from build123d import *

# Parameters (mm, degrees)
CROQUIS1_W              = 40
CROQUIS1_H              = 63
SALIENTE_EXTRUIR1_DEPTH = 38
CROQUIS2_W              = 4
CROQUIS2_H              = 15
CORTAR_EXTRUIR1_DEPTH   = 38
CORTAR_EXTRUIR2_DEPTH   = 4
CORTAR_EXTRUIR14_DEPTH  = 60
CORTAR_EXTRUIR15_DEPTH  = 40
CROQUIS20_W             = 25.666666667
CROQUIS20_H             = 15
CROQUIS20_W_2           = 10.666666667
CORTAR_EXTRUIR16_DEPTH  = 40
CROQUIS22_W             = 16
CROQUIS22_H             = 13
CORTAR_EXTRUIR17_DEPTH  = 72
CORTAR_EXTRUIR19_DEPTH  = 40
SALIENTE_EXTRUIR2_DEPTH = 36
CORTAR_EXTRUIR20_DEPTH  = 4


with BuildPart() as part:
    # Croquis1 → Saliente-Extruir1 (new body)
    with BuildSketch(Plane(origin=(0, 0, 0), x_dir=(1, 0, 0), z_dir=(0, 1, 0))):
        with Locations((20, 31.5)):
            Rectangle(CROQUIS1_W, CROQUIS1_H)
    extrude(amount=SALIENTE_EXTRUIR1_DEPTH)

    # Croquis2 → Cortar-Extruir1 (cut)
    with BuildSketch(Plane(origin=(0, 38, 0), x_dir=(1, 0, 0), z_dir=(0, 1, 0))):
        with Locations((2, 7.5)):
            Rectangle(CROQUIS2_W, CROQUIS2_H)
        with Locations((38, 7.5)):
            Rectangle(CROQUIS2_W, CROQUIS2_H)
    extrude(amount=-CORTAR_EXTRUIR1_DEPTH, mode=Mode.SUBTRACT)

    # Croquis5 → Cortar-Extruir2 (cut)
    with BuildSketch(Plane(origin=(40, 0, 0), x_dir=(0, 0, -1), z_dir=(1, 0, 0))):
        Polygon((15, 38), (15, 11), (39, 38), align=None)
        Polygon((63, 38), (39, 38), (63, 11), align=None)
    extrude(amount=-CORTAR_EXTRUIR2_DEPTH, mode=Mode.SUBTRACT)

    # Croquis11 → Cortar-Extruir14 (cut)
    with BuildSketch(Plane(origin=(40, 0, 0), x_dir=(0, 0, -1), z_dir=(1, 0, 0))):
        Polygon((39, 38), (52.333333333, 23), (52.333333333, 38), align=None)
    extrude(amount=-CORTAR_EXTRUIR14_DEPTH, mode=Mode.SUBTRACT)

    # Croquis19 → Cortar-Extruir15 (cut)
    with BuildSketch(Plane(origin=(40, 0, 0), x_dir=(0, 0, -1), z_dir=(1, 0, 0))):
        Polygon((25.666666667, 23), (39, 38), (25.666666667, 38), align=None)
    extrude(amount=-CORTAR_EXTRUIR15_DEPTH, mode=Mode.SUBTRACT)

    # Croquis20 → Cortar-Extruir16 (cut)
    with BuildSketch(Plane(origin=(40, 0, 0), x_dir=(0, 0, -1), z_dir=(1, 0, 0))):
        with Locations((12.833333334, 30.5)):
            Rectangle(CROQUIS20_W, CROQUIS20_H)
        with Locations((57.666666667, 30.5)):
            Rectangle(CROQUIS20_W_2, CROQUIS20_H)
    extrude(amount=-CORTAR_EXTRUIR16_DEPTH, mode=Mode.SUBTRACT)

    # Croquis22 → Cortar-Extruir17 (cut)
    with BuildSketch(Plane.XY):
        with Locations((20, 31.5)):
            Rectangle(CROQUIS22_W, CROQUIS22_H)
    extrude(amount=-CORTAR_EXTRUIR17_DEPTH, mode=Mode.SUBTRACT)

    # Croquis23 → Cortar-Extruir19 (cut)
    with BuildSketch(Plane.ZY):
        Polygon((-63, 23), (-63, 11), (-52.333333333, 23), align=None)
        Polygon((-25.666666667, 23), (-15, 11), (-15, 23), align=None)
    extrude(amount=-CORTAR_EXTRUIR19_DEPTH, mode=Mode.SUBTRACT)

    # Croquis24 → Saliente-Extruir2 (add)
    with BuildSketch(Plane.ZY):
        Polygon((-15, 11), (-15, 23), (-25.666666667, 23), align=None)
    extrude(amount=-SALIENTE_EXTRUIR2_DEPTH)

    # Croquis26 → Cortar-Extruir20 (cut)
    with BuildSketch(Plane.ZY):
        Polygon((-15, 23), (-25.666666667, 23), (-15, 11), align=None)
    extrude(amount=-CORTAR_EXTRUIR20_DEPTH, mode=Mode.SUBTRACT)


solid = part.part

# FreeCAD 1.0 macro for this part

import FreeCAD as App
import Part
import Sketcher

doc = App.newDocument("Part")
body = doc.addObject("PartDesign::Body", "Body")

# Sketch on XZ plane
sketch1 = body.newObject("Sketcher::SketchObject", "Sketch")
sketch1.AttachmentSupport = (doc.getObject("XZ_Plane"), [""])
sketch1.MapMode = "FlatFace"
sketch1.addGeometry([
    Part.LineSegment(App.Vector(0, -63, 0), App.Vector(0, 0, 0)),
    Part.LineSegment(App.Vector(0, 0, 0), App.Vector(40, 0, 0)),
    Part.LineSegment(App.Vector(40, 0, 0), App.Vector(40, -63, 0)),
    Part.LineSegment(App.Vector(40, -63, 0), App.Vector(0, -63, 0)),
], False)
sketch1.addConstraint([
    Sketcher.Constraint("Coincident", 0, 2, 1, 1),
    Sketcher.Constraint("Coincident", 1, 2, 2, 1),
    Sketcher.Constraint("Coincident", 2, 2, 3, 1),
    Sketcher.Constraint("Coincident", 3, 2, 0, 1),
    Sketcher.Constraint("Vertical", 0),
    Sketcher.Constraint("Horizontal", 1),
    Sketcher.Constraint("Vertical", 2),
    Sketcher.Constraint("Horizontal", 3),
    Sketcher.Constraint("Coincident", 0, 2, -1, 1),
    Sketcher.Constraint("DistanceX", 1, 1, 1, 2, 40.0),
    Sketcher.Constraint("DistanceY", 0, 1, 0, 2, 63.0),
])
pad1 = body.newObject("PartDesign::Pad", "Pad")
pad1.Profile = sketch1
pad1.Length = 38
pad1.Reversed = True

# Sketch on XZ plane
sketch2 = body.newObject("Sketcher::SketchObject", "Sketch001")
sketch2.AttachmentSupport = (doc.getObject("XZ_Plane"), [""])
sketch2.MapMode = "FlatFace"
sketch2.AttachmentOffset = App.Placement(App.Vector(0, 0, -38), App.Rotation())
sketch2.addGeometry([
    Part.LineSegment(App.Vector(0, -15, 0), App.Vector(0, 0, 0)),  # 0
    Part.LineSegment(App.Vector(0, 0, 0), App.Vector(4, 0, 0)),  # 1
    Part.LineSegment(App.Vector(4, 0, 0), App.Vector(4, -15, 0)),  # 2
    Part.LineSegment(App.Vector(4, -15, 0), App.Vector(0, -15, 0)),  # 3
    Part.LineSegment(App.Vector(36, -15, 0), App.Vector(36, 0, 0)),  # 4
    Part.LineSegment(App.Vector(36, 0, 0), App.Vector(40, 0, 0)),  # 5
    Part.LineSegment(App.Vector(40, 0, 0), App.Vector(40, -15, 0)),  # 6
    Part.LineSegment(App.Vector(40, -15, 0), App.Vector(36, -15, 0)),  # 7
], False)
sketch2.addConstraint([
    Sketcher.Constraint("Coincident", 0, 2, 1, 1),
    Sketcher.Constraint("Coincident", 1, 2, 2, 1),
    Sketcher.Constraint("Coincident", 2, 2, 3, 1),
    Sketcher.Constraint("Coincident", 3, 2, 0, 1),
    Sketcher.Constraint("Coincident", 4, 2, 5, 1),
    Sketcher.Constraint("Coincident", 5, 2, 6, 1),
    Sketcher.Constraint("Coincident", 6, 2, 7, 1),
    Sketcher.Constraint("Coincident", 7, 2, 4, 1),
    Sketcher.Constraint("Vertical", 0),
    Sketcher.Constraint("Horizontal", 1),
    Sketcher.Constraint("Vertical", 2),
    Sketcher.Constraint("Horizontal", 3),
    Sketcher.Constraint("Vertical", 4),
    Sketcher.Constraint("Horizontal", 5),
    Sketcher.Constraint("Vertical", 6),
    Sketcher.Constraint("Horizontal", 7),
    Sketcher.Constraint("Coincident", 0, 2, -1, 1),
    Sketcher.Constraint("PointOnObject", 4, 2, -1),
    Sketcher.Constraint("Horizontal", 3, 2, 6, 2),
    Sketcher.Constraint("Equal", 3, 5),
    Sketcher.Constraint("DistanceX", 1, 1, 1, 2, 4.0),
    Sketcher.Constraint("DistanceY", 0, 1, 0, 2, 15.0),
    Sketcher.Constraint("DistanceX", -1, 1, 4, 2, 36.0),
])
pocket1 = body.newObject("PartDesign::Pocket", "Pocket")
pocket1.Profile = sketch2
pocket1.Length = 38
pocket1.Reversed = True

# Sketch on YZ plane
sketch3 = body.newObject("Sketcher::SketchObject", "Sketch002")
sketch3.AttachmentSupport = (doc.getObject("YZ_Plane"), [""])
sketch3.MapMode = "FlatFace"
sketch3.AttachmentOffset = App.Placement(App.Vector(0, 0, 40), App.Rotation())
sketch3.addGeometry([
    Part.LineSegment(App.Vector(38, -15, 0), App.Vector(11, -15, 0)),  # 0
    Part.LineSegment(App.Vector(11, -15, 0), App.Vector(38, -39, 0)),  # 1
    Part.LineSegment(App.Vector(38, -39, 0), App.Vector(38, -15, 0)),  # 2
    Part.LineSegment(App.Vector(38, -63, 0), App.Vector(38, -39, 0)),  # 3
    Part.LineSegment(App.Vector(38, -39, 0), App.Vector(11, -63, 0)),  # 4
    Part.LineSegment(App.Vector(11, -63, 0), App.Vector(38, -63, 0)),  # 5
], False)
sketch3.addConstraint([
    Sketcher.Constraint("Coincident", 0, 2, 1, 1),
    Sketcher.Constraint("Coincident", 1, 2, 2, 1),
    Sketcher.Constraint("Coincident", 2, 2, 0, 1),
    Sketcher.Constraint("Coincident", 3, 2, 4, 1),
    Sketcher.Constraint("Coincident", 4, 2, 5, 1),
    Sketcher.Constraint("Coincident", 5, 2, 3, 1),
    Sketcher.Constraint("Horizontal", 0),
    Sketcher.Constraint("Vertical", 2),
    Sketcher.Constraint("Vertical", 3),
    Sketcher.Constraint("Horizontal", 5),
    Sketcher.Constraint("Coincident", 3, 2, 1, 2),
    Sketcher.Constraint("Vertical", 0, 2, 4, 2),
    Sketcher.Constraint("Equal", 2, 3),
    Sketcher.Constraint("DistanceX", 0, 2, 0, 1, 27.0),
    Sketcher.Constraint("DistanceY", 2, 1, 2, 2, 24.0),
    Sketcher.Constraint("DistanceX", -1, 1, 0, 2, 11.0),
    Sketcher.Constraint("DistanceY", 0, 2, -1, 1, 15.0),
])
pocket2 = body.newObject("PartDesign::Pocket", "Pocket001")
pocket2.Profile = sketch3
pocket2.Length = 4

# Sketch on YZ plane
sketch4 = body.newObject("Sketcher::SketchObject", "Sketch003")
sketch4.AttachmentSupport = (doc.getObject("YZ_Plane"), [""])
sketch4.MapMode = "FlatFace"
sketch4.AttachmentOffset = App.Placement(App.Vector(0, 0, 40), App.Rotation())
sketch4.addGeometry([
    Part.LineSegment(App.Vector(38, -39, 0), App.Vector(23, -52, 0)),
    Part.LineSegment(App.Vector(23, -52, 0), App.Vector(38, -52, 0)),
    Part.LineSegment(App.Vector(38, -52, 0), App.Vector(38, -39, 0)),
], False)
sketch4.addConstraint([
    Sketcher.Constraint("Coincident", 0, 2, 1, 1),
    Sketcher.Constraint("Coincident", 1, 2, 2, 1),
    Sketcher.Constraint("Coincident", 2, 2, 0, 1),
    Sketcher.Constraint("Horizontal", 1),
    Sketcher.Constraint("Vertical", 2),
    Sketcher.Constraint("DistanceX", 1, 1, 1, 2, 15.0),
    Sketcher.Constraint("DistanceX", -1, 1, 0, 2, 23.0),
    Sketcher.Constraint("DistanceY", 2, 2, -1, 1, 39.0),
    Sketcher.Constraint("DistanceY", 2, 1, 2, 2, 13.333333),
])
pocket3 = body.newObject("PartDesign::Pocket", "Pocket002")
pocket3.Profile = sketch4
pocket3.Length = 60

# Sketch on YZ plane
sketch5 = body.newObject("Sketcher::SketchObject", "Sketch004")
sketch5.AttachmentSupport = (doc.getObject("YZ_Plane"), [""])
sketch5.MapMode = "FlatFace"
sketch5.AttachmentOffset = App.Placement(App.Vector(0, 0, 40), App.Rotation())
sketch5.addGeometry([
    Part.LineSegment(App.Vector(23, -26, 0), App.Vector(38, -39, 0)),
    Part.LineSegment(App.Vector(38, -39, 0), App.Vector(38, -26, 0)),
    Part.LineSegment(App.Vector(38, -26, 0), App.Vector(23, -26, 0)),
], False)
sketch5.addConstraint([
    Sketcher.Constraint("Coincident", 0, 2, 1, 1),
    Sketcher.Constraint("Coincident", 1, 2, 2, 1),
    Sketcher.Constraint("Coincident", 2, 2, 0, 1),
    Sketcher.Constraint("Vertical", 1),
    Sketcher.Constraint("Horizontal", 2),
    Sketcher.Constraint("DistanceX", 2, 2, 2, 1, 15.0),
    Sketcher.Constraint("DistanceX", -1, 1, 0, 2, 38.0),
    Sketcher.Constraint("DistanceY", 0, 2, -1, 1, 39.0),
    Sketcher.Constraint("DistanceY", 1, 1, 1, 2, 13.333333),
])
pocket4 = body.newObject("PartDesign::Pocket", "Pocket003")
pocket4.Profile = sketch5
pocket4.Length = 40

# Sketch on YZ plane
sketch6 = body.newObject("Sketcher::SketchObject", "Sketch005")
sketch6.AttachmentSupport = (doc.getObject("YZ_Plane"), [""])
sketch6.MapMode = "FlatFace"
sketch6.AttachmentOffset = App.Placement(App.Vector(0, 0, 40), App.Rotation())
sketch6.addGeometry([
    Part.LineSegment(App.Vector(38, 0, 0), App.Vector(23, 0, 0)),  # 0
    Part.LineSegment(App.Vector(23, 0, 0), App.Vector(23, -26, 0)),  # 1
    Part.LineSegment(App.Vector(23, -26, 0), App.Vector(38, -26, 0)),  # 2
    Part.LineSegment(App.Vector(38, -26, 0), App.Vector(38, 0, 0)),  # 3
    Part.LineSegment(App.Vector(38, -52, 0), App.Vector(23, -52, 0)),  # 4
    Part.LineSegment(App.Vector(23, -52, 0), App.Vector(23, -63, 0)),  # 5
    Part.LineSegment(App.Vector(23, -63, 0), App.Vector(38, -63, 0)),  # 6
    Part.LineSegment(App.Vector(38, -63, 0), App.Vector(38, -52, 0)),  # 7
], False)
sketch6.addConstraint([
    Sketcher.Constraint("Coincident", 0, 2, 1, 1),
    Sketcher.Constraint("Coincident", 1, 2, 2, 1),
    Sketcher.Constraint("Coincident", 2, 2, 3, 1),
    Sketcher.Constraint("Coincident", 3, 2, 0, 1),
    Sketcher.Constraint("Coincident", 4, 2, 5, 1),
    Sketcher.Constraint("Coincident", 5, 2, 6, 1),
    Sketcher.Constraint("Coincident", 6, 2, 7, 1),
    Sketcher.Constraint("Coincident", 7, 2, 4, 1),
    Sketcher.Constraint("Horizontal", 0),
    Sketcher.Constraint("Vertical", 1),
    Sketcher.Constraint("Horizontal", 2),
    Sketcher.Constraint("Vertical", 3),
    Sketcher.Constraint("Horizontal", 4),
    Sketcher.Constraint("Vertical", 5),
    Sketcher.Constraint("Horizontal", 6),
    Sketcher.Constraint("Vertical", 7),
    Sketcher.Constraint("PointOnObject", 0, 2, -1),
    Sketcher.Constraint("Vertical", 1, 2, 4, 2),
    Sketcher.Constraint("Vertical", 3, 2, 6, 2),
    Sketcher.Constraint("DistanceX", 0, 2, 0, 1, 15.0),
    Sketcher.Constraint("DistanceX", -1, 1, 0, 2, 23.0),
    Sketcher.Constraint("DistanceY", 5, 2, -1, 1, 63.0),
    Sketcher.Constraint("DistanceY", 1, 2, 1, 1, 25.666667),
    Sketcher.Constraint("DistanceY", 5, 2, 5, 1, 10.666667),
])
pocket5 = body.newObject("PartDesign::Pocket", "Pocket004")
pocket5.Profile = sketch6
pocket5.Length = 40

# Sketch on XY plane
sketch7 = body.newObject("Sketcher::SketchObject", "Sketch006")
sketch7.AttachmentSupport = (doc.getObject("XY_Plane"), [""])
sketch7.MapMode = "FlatFace"
sketch7.addGeometry([
    Part.LineSegment(App.Vector(12, 38, 0), App.Vector(12, 25, 0)),
    Part.LineSegment(App.Vector(12, 25, 0), App.Vector(28, 25, 0)),
    Part.LineSegment(App.Vector(28, 25, 0), App.Vector(28, 38, 0)),
    Part.LineSegment(App.Vector(28, 38, 0), App.Vector(12, 38, 0)),
], False)
sketch7.addConstraint([
    Sketcher.Constraint("Coincident", 0, 2, 1, 1),
    Sketcher.Constraint("Coincident", 1, 2, 2, 1),
    Sketcher.Constraint("Coincident", 2, 2, 3, 1),
    Sketcher.Constraint("Coincident", 3, 2, 0, 1),
    Sketcher.Constraint("Vertical", 0),
    Sketcher.Constraint("Horizontal", 1),
    Sketcher.Constraint("Vertical", 2),
    Sketcher.Constraint("Horizontal", 3),
    Sketcher.Constraint("DistanceX", 1, 1, 1, 2, 16.0),
    Sketcher.Constraint("DistanceY", 0, 2, 0, 1, 13.0),
    Sketcher.Constraint("DistanceX", -1, 1, 0, 2, 12.0),
    Sketcher.Constraint("DistanceY", -1, 1, 0, 2, 25.0),
])
pocket6 = body.newObject("PartDesign::Pocket", "Pocket005")
pocket6.Profile = sketch7
pocket6.Length = 72

# Sketch on YZ plane
sketch8 = body.newObject("Sketcher::SketchObject", "Sketch007")
sketch8.AttachmentSupport = (doc.getObject("YZ_Plane"), [""])
sketch8.MapMode = "FlatFace"
sketch8.addGeometry([
    Part.LineSegment(App.Vector(23, -63, 0), App.Vector(11, -63, 0)),  # 0
    Part.LineSegment(App.Vector(11, -63, 0), App.Vector(23, -52, 0)),  # 1
    Part.LineSegment(App.Vector(23, -52, 0), App.Vector(23, -63, 0)),  # 2
    Part.LineSegment(App.Vector(23, -26, 0), App.Vector(11, -15, 0)),  # 3
    Part.LineSegment(App.Vector(11, -15, 0), App.Vector(23, -15, 0)),  # 4
    Part.LineSegment(App.Vector(23, -15, 0), App.Vector(23, -26, 0)),  # 5
], False)
sketch8.addConstraint([
    Sketcher.Constraint("Coincident", 0, 2, 1, 1),
    Sketcher.Constraint("Coincident", 1, 2, 2, 1),
    Sketcher.Constraint("Coincident", 2, 2, 0, 1),
    Sketcher.Constraint("Coincident", 3, 2, 4, 1),
    Sketcher.Constraint("Coincident", 4, 2, 5, 1),
    Sketcher.Constraint("Coincident", 5, 2, 3, 1),
    Sketcher.Constraint("Horizontal", 0),
    Sketcher.Constraint("Vertical", 2),
    Sketcher.Constraint("Horizontal", 4),
    Sketcher.Constraint("Vertical", 5),
    Sketcher.Constraint("Vertical", 0, 2, 3, 2),
    Sketcher.Constraint("Vertical", 2, 2, 4, 2),
    Sketcher.Constraint("Equal", 2, 5),
    Sketcher.Constraint("DistanceX", 0, 2, 0, 1, 12.0),
    Sketcher.Constraint("DistanceX", -1, 1, 0, 2, 11.0),
    Sketcher.Constraint("DistanceY", 0, 2, -1, 1, 63.0),
    Sketcher.Constraint("DistanceY", 3, 2, -1, 1, 15.0),
    Sketcher.Constraint("Distance", 1, 16.055459),
])
pocket7 = body.newObject("PartDesign::Pocket", "Pocket006")
pocket7.Profile = sketch8
pocket7.Length = 40
pocket7.Reversed = True

# Sketch on YZ plane
sketch9 = body.newObject("Sketcher::SketchObject", "Sketch008")
sketch9.AttachmentSupport = (doc.getObject("YZ_Plane"), [""])
sketch9.MapMode = "FlatFace"
sketch9.addGeometry([
    Part.LineSegment(App.Vector(11, -15, 0), App.Vector(23, -15, 0)),
    Part.LineSegment(App.Vector(23, -15, 0), App.Vector(23, -26, 0)),
    Part.LineSegment(App.Vector(23, -26, 0), App.Vector(11, -15, 0)),
], False)
sketch9.addConstraint([
    Sketcher.Constraint("Coincident", 0, 2, 1, 1),
    Sketcher.Constraint("Coincident", 1, 2, 2, 1),
    Sketcher.Constraint("Coincident", 2, 2, 0, 1),
    Sketcher.Constraint("Horizontal", 0),
    Sketcher.Constraint("Vertical", 1),
    Sketcher.Constraint("DistanceX", 0, 1, 0, 2, 12.0),
    Sketcher.Constraint("DistanceX", -1, 1, 0, 2, 23.0),
    Sketcher.Constraint("DistanceY", 0, 2, -1, 1, 15.0),
    Sketcher.Constraint("Distance", 2, 16.055459),
])
pad2 = body.newObject("PartDesign::Pad", "Pad001")
pad2.Profile = sketch9
pad2.Length = 36

# Sketch on YZ plane
sketch10 = body.newObject("Sketcher::SketchObject", "Sketch009")
sketch10.AttachmentSupport = (doc.getObject("YZ_Plane"), [""])
sketch10.MapMode = "FlatFace"
sketch10.addGeometry([
    Part.LineSegment(App.Vector(23, -15, 0), App.Vector(23, -26, 0)),
    Part.LineSegment(App.Vector(23, -26, 0), App.Vector(11, -15, 0)),
    Part.LineSegment(App.Vector(11, -15, 0), App.Vector(23, -15, 0)),
], False)
sketch10.addConstraint([
    Sketcher.Constraint("Coincident", 0, 2, 1, 1),
    Sketcher.Constraint("Coincident", 1, 2, 2, 1),
    Sketcher.Constraint("Coincident", 2, 2, 0, 1),
    Sketcher.Constraint("Vertical", 0),
    Sketcher.Constraint("Horizontal", 2),
    Sketcher.Constraint("DistanceX", 2, 1, 2, 2, 12.0),
    Sketcher.Constraint("DistanceX", -1, 1, 0, 2, 23.0),
    Sketcher.Constraint("DistanceY", 1, 2, -1, 1, 15.0),
    Sketcher.Constraint("Distance", 1, 16.055459),
])
pocket8 = body.newObject("PartDesign::Pocket", "Pocket007")
pocket8.Profile = sketch10
pocket8.Length = 4
pocket8.Reversed = True

doc.recompute()
